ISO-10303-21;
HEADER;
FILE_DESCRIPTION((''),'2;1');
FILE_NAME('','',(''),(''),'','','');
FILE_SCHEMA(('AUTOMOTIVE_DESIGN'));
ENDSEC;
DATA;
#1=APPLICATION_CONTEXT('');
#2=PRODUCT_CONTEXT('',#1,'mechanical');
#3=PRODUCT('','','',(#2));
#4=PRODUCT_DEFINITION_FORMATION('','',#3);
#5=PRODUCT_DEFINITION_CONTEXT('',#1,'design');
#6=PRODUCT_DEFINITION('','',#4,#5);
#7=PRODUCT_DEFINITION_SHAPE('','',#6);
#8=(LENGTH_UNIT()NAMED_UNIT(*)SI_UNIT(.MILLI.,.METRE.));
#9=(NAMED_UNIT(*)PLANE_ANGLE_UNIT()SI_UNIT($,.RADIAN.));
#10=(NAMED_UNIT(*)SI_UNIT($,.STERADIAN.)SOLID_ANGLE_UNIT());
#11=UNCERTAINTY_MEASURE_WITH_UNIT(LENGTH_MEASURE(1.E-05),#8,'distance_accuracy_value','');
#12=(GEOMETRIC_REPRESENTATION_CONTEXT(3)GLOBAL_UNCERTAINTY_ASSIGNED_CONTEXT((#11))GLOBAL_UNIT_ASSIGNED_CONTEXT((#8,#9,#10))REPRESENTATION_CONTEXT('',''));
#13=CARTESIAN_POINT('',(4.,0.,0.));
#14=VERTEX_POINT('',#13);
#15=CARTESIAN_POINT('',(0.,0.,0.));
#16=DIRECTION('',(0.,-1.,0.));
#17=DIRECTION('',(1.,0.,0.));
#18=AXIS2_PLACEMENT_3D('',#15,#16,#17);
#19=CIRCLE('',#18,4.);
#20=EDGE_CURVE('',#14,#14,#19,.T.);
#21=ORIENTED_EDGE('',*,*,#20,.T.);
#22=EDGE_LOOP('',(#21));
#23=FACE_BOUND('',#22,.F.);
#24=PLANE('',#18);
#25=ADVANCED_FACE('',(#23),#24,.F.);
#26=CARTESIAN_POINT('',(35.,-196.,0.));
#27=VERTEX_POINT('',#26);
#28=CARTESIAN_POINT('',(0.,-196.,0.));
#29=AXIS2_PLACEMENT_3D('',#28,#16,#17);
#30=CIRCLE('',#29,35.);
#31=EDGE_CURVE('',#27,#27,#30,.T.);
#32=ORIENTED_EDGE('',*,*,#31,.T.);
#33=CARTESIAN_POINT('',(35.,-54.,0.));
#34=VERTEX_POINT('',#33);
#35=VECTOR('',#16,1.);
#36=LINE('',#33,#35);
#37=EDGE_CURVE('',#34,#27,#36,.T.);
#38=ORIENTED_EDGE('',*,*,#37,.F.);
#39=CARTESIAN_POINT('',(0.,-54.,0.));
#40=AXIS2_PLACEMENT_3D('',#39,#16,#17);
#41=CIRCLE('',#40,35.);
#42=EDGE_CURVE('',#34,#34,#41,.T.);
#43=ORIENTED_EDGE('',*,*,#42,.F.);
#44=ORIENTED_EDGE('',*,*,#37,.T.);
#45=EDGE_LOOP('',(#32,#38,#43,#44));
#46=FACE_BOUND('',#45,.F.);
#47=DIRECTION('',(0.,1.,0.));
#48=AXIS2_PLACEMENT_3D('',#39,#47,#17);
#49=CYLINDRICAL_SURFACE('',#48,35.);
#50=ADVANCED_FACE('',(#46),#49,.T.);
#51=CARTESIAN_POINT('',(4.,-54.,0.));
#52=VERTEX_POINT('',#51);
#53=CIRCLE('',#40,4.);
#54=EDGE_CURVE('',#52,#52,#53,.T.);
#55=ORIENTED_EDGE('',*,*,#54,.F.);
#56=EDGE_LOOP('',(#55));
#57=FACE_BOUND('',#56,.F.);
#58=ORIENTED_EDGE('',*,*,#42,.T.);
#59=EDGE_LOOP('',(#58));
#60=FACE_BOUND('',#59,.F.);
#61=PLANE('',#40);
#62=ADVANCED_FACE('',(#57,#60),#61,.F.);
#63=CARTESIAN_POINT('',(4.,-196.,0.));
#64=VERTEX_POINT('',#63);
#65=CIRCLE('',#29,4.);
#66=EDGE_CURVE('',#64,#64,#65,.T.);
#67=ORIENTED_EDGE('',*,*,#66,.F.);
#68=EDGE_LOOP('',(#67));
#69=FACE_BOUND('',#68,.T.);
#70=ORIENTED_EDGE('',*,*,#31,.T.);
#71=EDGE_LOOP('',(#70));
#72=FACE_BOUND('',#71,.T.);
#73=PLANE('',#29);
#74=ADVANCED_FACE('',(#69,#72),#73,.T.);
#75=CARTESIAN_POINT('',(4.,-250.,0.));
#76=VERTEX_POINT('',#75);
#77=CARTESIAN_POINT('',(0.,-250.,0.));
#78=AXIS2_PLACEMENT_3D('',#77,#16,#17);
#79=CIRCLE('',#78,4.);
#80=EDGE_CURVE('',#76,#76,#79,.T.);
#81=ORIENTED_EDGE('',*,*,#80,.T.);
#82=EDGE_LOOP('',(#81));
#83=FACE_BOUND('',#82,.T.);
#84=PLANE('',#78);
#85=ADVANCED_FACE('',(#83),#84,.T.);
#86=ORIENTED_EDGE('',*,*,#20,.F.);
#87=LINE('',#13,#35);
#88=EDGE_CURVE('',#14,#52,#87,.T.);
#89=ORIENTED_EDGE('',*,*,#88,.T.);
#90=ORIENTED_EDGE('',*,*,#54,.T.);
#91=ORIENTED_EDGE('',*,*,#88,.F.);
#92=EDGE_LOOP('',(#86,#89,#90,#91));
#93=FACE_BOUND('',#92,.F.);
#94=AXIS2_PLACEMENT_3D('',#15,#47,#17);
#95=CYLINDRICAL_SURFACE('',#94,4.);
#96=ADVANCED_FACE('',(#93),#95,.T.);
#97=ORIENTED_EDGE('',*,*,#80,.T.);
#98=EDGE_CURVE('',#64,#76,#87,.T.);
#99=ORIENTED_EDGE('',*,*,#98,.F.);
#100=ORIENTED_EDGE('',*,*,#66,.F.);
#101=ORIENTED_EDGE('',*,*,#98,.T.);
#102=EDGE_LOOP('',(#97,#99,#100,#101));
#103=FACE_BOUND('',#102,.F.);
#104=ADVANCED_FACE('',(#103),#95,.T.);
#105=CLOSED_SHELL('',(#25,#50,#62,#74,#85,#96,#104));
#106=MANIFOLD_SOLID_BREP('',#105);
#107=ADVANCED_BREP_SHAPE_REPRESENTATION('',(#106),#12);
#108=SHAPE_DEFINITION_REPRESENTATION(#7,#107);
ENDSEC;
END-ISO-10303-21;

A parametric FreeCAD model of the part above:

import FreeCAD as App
import Part
import Sketcher

V = App.Vector
Q = App.Units.Quantity

doc = App.newDocument("Part")
params = doc.addObject("Spreadsheet::Sheet", "Params")
for row, (alias, value) in enumerate([
    ("sketch1_diameter", "8 mm"),
    ("pad1_length", "250 mm"),
    ("sketch2_diameter", "70 mm"),
    ("sketch2_diameter2", "8 mm"),
    ("pad2_length", "142 mm"),
], start=1):
    params.set(f"A{row}", alias)
    params.set(f"B{row}", "=" + value)
    params.setAlias(f"B{row}", alias)

body = doc.addObject("PartDesign::Body", "Body")

# Sketch on XZ plane
sketch1 = body.newObject("Sketcher::SketchObject", "Sketch")
sketch1.AttachmentSupport = (doc.getObject("XZ_Plane"), [""])
sketch1.MapMode = "FlatFace"
sketch1.addGeometry(Part.Circle(V(0, 0, 0), V(0, 0, 1), 4), False)
sketch1.addConstraint([
    Sketcher.Constraint("Coincident", 0, 3, -1, 1),
    Sketcher.Constraint("Diameter", 0, Q("8 mm")),
])
sketch1.setExpression("Constraints[1]", "Params.sketch1_diameter")
pad1 = body.newObject("PartDesign::Pad", "Pad")
pad1.Profile = sketch1
pad1.setExpression("Length", "Params.pad1_length")

# Sketch on XZ plane
sketch2 = body.newObject("Sketcher::SketchObject", "Sketch001")
sketch2.AttachmentSupport = (doc.getObject("XZ_Plane"), [""])
sketch2.MapMode = "FlatFace"
sketch2.AttachmentOffset = App.Placement(V(0, 0, 54), App.Rotation())
sketch2.addGeometry([
    Part.Circle(V(0, 0, 0), V(0, 0, 1), 35),
    Part.Circle(V(0, 0, 0), V(0, 0, 1), 4),
], False)
sketch2.addConstraint([
    Sketcher.Constraint("Coincident", 0, 3, -1, 1),
    Sketcher.Constraint("Coincident", 1, 3, -1, 1),
    Sketcher.Constraint("Diameter", 0, Q("70 mm")),
    Sketcher.Constraint("Diameter", 1, Q("8 mm")),
])
sketch2.setExpression("Constraints[2]", "Params.sketch2_diameter")
sketch2.setExpression("Constraints[3]", "Params.sketch2_diameter2")
pad2 = body.newObject("PartDesign::Pad", "Pad001")
pad2.Profile = sketch2
pad2.setExpression("Length", "Params.pad2_length")

doc.recompute()
